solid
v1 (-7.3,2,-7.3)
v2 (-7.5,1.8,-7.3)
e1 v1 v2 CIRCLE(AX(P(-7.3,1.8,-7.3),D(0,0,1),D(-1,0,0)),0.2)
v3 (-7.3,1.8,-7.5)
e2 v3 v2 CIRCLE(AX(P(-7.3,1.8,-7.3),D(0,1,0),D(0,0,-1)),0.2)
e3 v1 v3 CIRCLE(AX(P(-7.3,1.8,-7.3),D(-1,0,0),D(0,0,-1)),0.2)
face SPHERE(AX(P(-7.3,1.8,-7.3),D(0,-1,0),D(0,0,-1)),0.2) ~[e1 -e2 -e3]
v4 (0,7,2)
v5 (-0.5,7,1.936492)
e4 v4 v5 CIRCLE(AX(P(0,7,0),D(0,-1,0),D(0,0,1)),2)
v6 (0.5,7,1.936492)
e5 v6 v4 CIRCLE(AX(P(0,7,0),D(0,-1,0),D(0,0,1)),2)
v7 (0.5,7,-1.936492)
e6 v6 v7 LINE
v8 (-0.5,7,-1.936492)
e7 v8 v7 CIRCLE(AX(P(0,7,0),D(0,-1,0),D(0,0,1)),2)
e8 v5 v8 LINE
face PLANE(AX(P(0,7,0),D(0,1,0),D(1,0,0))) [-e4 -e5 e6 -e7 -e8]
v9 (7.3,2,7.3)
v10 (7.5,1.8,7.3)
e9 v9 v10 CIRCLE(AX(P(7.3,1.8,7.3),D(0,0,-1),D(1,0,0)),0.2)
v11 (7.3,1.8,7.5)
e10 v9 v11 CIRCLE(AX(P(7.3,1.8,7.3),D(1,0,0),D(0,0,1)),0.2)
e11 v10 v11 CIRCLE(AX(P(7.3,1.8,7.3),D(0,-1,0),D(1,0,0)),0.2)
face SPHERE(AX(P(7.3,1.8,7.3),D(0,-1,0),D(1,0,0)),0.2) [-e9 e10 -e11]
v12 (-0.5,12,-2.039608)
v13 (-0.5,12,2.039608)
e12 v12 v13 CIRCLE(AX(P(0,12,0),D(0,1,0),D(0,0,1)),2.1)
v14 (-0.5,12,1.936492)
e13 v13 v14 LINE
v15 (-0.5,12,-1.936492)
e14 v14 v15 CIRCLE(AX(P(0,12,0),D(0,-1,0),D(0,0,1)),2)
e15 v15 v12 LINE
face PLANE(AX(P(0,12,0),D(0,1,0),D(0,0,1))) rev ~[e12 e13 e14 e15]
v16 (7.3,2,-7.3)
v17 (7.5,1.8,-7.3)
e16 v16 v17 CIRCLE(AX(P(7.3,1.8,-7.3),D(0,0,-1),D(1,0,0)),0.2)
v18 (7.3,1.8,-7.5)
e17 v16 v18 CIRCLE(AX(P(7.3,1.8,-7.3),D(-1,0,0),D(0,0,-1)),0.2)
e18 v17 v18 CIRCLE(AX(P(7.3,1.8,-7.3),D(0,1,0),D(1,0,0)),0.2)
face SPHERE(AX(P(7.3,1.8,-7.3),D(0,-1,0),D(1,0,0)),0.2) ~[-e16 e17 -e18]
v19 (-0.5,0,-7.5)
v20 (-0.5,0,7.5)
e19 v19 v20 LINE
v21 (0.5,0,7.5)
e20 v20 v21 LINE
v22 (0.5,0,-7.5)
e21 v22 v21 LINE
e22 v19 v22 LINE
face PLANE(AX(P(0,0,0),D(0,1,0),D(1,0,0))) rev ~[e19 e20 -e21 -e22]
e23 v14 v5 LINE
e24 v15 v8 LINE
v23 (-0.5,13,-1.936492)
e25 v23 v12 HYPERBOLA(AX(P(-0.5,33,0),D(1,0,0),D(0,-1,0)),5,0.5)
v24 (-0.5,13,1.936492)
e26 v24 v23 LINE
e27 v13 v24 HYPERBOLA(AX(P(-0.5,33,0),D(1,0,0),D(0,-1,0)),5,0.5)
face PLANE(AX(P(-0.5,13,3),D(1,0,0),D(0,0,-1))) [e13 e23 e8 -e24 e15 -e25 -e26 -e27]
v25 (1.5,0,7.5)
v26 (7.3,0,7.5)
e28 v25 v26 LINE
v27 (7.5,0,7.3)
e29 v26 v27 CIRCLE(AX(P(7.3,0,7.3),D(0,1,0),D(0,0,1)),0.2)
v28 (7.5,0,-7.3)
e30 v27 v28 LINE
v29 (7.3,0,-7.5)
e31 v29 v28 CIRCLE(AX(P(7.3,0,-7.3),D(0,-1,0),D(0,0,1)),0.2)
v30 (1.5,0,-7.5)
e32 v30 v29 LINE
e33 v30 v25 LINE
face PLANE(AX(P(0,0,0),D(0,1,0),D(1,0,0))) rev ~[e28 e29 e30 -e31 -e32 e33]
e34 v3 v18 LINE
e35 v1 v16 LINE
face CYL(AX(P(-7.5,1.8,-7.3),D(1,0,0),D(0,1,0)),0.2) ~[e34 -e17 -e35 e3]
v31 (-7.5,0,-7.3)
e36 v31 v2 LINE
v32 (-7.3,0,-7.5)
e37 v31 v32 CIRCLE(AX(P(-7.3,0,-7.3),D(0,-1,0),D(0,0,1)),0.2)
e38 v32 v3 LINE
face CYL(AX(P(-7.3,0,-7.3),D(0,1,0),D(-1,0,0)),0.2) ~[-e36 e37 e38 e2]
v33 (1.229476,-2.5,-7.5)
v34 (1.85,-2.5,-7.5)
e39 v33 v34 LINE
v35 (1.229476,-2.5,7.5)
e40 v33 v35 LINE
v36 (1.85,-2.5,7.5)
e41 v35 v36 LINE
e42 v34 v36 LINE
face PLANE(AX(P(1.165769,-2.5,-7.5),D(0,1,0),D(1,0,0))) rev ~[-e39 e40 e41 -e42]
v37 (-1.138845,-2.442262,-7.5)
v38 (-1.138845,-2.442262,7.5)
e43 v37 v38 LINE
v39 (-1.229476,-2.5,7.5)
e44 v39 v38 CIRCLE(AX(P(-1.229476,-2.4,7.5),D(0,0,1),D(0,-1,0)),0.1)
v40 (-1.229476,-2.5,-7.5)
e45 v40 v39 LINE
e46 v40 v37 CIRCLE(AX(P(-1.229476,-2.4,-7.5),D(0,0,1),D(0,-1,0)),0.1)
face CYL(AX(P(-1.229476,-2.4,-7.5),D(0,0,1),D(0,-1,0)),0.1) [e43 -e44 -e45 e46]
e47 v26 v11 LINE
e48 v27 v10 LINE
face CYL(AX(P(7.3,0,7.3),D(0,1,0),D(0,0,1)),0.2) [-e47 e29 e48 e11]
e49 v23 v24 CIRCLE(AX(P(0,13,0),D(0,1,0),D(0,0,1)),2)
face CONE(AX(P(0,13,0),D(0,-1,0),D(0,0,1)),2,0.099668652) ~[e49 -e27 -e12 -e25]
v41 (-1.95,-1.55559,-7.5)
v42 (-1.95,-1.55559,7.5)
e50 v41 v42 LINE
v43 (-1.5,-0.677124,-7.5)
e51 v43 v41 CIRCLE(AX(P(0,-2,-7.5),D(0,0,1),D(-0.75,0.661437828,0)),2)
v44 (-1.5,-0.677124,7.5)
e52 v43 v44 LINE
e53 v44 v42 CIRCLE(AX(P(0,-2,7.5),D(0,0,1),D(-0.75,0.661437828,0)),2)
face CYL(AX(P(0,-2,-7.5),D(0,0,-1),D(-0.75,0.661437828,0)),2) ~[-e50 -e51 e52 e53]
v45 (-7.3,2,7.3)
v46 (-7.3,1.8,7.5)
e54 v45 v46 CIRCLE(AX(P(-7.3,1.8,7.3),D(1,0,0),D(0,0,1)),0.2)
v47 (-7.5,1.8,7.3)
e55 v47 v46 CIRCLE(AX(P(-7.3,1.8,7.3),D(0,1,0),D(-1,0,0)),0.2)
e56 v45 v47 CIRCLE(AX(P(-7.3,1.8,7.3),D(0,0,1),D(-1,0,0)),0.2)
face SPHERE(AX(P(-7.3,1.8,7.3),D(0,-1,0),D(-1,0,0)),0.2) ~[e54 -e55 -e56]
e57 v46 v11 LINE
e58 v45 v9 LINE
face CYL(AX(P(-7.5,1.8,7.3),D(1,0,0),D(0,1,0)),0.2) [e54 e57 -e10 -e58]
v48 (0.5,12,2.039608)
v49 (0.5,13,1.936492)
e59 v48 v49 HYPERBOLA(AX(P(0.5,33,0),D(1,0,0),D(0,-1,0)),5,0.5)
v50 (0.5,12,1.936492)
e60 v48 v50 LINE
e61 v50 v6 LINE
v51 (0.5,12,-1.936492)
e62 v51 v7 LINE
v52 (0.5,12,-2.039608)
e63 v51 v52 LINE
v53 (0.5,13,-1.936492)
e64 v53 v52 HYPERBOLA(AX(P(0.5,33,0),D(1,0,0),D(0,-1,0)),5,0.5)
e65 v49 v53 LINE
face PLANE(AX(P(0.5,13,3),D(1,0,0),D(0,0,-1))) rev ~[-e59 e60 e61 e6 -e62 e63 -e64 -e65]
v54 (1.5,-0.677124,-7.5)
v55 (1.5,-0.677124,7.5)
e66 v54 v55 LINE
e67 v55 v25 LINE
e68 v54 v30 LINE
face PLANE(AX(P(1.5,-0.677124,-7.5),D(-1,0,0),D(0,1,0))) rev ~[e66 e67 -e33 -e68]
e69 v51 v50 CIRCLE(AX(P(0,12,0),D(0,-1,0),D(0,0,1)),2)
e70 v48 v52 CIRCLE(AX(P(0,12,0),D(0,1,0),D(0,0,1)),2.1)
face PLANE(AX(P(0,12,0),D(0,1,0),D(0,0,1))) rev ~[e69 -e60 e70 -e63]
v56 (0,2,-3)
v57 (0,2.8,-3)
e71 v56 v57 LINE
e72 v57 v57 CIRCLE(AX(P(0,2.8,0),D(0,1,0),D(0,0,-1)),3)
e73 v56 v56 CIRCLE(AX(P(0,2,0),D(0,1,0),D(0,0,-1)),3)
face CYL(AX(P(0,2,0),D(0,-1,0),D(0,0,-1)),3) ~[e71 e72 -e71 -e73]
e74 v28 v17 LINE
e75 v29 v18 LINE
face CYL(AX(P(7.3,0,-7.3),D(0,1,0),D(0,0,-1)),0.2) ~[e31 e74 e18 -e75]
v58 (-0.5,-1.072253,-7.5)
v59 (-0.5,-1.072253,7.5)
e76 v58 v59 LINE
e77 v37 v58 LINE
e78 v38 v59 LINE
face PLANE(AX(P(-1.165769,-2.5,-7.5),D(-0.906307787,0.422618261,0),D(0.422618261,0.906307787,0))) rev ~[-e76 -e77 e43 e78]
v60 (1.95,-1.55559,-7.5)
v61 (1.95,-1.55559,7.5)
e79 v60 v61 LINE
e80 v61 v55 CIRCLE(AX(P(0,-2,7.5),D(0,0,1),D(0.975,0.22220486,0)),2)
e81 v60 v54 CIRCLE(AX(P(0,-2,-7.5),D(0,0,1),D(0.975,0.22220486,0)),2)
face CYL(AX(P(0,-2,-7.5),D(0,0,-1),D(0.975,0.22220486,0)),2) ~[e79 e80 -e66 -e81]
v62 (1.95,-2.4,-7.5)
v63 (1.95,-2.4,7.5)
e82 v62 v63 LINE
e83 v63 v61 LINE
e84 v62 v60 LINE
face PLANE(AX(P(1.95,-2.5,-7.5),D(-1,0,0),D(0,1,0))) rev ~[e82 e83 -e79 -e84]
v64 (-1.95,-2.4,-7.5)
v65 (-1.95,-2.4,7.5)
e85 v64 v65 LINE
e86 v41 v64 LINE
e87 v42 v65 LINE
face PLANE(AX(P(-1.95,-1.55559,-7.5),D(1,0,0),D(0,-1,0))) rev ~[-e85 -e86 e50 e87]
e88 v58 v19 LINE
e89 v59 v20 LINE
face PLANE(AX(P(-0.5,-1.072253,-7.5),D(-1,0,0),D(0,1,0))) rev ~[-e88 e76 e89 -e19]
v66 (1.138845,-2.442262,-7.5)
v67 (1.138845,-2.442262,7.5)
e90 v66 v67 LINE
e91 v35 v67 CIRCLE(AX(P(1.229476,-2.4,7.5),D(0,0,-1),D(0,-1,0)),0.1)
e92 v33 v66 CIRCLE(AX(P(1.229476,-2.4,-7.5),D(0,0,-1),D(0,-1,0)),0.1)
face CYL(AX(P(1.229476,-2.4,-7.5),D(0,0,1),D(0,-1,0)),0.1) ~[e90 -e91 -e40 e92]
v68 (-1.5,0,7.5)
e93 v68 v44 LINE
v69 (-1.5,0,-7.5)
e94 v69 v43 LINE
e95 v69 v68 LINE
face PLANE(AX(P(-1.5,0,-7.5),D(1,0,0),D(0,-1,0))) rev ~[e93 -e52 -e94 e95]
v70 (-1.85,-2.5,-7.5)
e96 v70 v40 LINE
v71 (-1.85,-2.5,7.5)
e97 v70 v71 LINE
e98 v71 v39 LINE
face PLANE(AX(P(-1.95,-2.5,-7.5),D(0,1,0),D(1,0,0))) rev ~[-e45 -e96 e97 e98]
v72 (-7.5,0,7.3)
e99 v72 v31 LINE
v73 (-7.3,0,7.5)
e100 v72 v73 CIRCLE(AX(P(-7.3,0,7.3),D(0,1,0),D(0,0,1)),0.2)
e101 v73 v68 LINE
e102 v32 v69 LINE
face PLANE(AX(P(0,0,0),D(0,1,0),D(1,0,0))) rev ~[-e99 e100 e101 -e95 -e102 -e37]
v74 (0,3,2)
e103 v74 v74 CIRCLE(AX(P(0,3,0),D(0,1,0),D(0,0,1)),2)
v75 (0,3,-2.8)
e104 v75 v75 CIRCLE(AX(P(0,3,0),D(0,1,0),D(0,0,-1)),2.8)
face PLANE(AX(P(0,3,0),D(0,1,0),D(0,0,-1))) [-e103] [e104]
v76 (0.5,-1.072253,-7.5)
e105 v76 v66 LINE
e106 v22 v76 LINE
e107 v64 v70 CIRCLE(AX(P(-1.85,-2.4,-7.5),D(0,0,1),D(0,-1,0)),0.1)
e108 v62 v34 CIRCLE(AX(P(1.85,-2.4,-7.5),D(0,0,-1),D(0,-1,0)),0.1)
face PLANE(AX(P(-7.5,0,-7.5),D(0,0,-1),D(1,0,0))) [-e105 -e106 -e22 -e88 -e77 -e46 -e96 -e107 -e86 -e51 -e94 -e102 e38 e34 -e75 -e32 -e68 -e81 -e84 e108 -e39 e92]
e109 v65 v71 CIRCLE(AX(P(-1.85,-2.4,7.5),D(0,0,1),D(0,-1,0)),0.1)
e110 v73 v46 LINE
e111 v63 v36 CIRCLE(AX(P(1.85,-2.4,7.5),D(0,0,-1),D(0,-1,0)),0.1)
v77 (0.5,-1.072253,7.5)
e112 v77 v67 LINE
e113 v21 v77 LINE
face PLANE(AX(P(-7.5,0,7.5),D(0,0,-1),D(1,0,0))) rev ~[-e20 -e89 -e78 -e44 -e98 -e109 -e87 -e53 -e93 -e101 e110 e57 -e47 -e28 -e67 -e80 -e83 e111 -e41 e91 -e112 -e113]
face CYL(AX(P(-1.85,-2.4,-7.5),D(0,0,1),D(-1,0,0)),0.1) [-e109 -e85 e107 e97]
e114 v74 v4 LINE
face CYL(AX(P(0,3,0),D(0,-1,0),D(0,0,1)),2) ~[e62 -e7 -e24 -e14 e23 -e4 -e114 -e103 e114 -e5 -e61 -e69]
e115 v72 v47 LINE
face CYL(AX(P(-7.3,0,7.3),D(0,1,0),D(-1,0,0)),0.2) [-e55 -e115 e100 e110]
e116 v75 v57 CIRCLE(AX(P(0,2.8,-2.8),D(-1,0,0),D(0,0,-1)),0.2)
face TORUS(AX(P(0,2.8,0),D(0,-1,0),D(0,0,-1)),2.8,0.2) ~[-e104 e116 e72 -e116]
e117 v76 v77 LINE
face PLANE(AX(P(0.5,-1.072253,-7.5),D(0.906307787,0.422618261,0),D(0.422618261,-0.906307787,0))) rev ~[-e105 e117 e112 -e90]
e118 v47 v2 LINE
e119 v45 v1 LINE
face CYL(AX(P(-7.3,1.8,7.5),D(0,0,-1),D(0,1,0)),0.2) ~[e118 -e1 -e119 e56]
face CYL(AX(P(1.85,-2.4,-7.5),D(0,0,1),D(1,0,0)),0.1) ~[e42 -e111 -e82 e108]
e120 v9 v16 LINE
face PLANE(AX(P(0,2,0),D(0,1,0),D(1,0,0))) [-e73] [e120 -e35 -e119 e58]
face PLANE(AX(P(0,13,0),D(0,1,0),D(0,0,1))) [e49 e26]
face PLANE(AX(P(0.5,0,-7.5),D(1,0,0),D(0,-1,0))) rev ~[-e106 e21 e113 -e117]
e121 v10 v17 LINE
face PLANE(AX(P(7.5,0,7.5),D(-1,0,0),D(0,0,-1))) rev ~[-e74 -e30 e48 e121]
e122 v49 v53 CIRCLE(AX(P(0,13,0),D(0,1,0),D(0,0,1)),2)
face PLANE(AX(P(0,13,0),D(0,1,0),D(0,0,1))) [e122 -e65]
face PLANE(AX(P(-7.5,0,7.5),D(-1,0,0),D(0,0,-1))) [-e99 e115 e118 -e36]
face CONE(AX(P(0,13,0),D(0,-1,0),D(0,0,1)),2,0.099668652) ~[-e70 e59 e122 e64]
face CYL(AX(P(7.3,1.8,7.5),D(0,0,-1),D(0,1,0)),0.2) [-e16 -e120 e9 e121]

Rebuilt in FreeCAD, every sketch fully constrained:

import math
import FreeCAD as App
import Part
import Sketcher
from FreeCAD import Vector
Q = App.Units.Quantity


def edges_at(feature, points):
    """Names of the edges that pass closest to the given points."""
    edges = feature.Shape.Edges
    near = lambda p: min(range(len(edges)), key=lambda i: edges[i].distToShape(Part.Vertex(*p))[0])
    return sorted({f"Edge{near(p) + 1}" for p in points})

doc = App.newDocument("Part")
body = doc.addObject("PartDesign::Body", "Body")

# Sketch on XZ plane
sketch1 = body.newObject("Sketcher::SketchObject", "Sketch")
sketch1.AttachmentSupport = (doc.getObject("XZ_Plane"), [""])
sketch1.MapMode = "FlatFace"
sketch1.addGeometry([
    Part.LineSegment(Vector(-8, -8, 0), Vector(-8, 8, 0)),
    Part.LineSegment(Vector(-8, 8, 0), Vector(8, 8, 0)),
    Part.LineSegment(Vector(8, 8, 0), Vector(8, -8, 0)),
    Part.LineSegment(Vector(8, -8, 0), Vector(-8, -8, 0)),
], False)
sketch1.addConstraint([
    Sketcher.Constraint("Coincident", 0, 2, 1, 1),
    Sketcher.Constraint("Coincident", 1, 2, 2, 1),
    Sketcher.Constraint("Coincident", 2, 2, 3, 1),
    Sketcher.Constraint("Coincident", 3, 2, 0, 1),
    Sketcher.Constraint("Vertical", 0),
    Sketcher.Constraint("Horizontal", 1),
    Sketcher.Constraint("Vertical", 2),
    Sketcher.Constraint("Horizontal", 3),
    Sketcher.Constraint("Symmetric", 0, 2, 2, 2, -1, 1),
    Sketcher.Constraint("Equal", 3, 0),
    Sketcher.Constraint("DistanceX", 1, 1, 1, 2, Q("15 mm")),
])
pad1 = body.newObject("PartDesign::Pad", "Pad")
pad1.Profile = sketch1
pad1.Length = 2
pad1.Reversed = True

# Sketch on XZ plane
sketch2 = body.newObject("Sketcher::SketchObject", "Sketch001")
sketch2.AttachmentSupport = (doc.getObject("XZ_Plane"), [""])
sketch2.MapMode = "FlatFace"
sketch2.AttachmentOffset = App.Placement(Vector(0, 0, -2), App.Rotation())
sketch2.addGeometry(Part.Circle(Vector(0, 0, 0), Vector(0, 0, 1), 3), False)
sketch2.addConstraint([
    Sketcher.Constraint("Coincident", 0, 3, -1, 1),
    Sketcher.Constraint("Diameter", 0, Q("6 mm")),
])
pad2 = body.newObject("PartDesign::Pad", "Pad001")
pad2.Profile = sketch2
pad2.Length = 1
pad2.Reversed = True

# Sketch on XZ plane
sketch3 = body.newObject("Sketcher::SketchObject", "Sketch002")
sketch3.AttachmentSupport = (doc.getObject("XZ_Plane"), [""])
sketch3.MapMode = "FlatFace"
sketch3.AttachmentOffset = App.Placement(Vector(0, 0, -3), App.Rotation())
sketch3.addGeometry(Part.Circle(Vector(0, 0, 0), Vector(0, 0, 1), 2), False)
sketch3.addConstraint([
    Sketcher.Constraint("Coincident", 0, 3, -1, 1),
    Sketcher.Constraint("Diameter", 0, Q("4 mm")),
])
pad3 = body.newObject("PartDesign::Pad", "Pad002")
pad3.Profile = sketch3
pad3.Length = 10
pad3.Reversed = True

# Sketch on XY plane
sketch4 = body.newObject("Sketcher::SketchObject", "Sketch003")
sketch4.AttachmentSupport = (doc.getObject("XY_Plane"), [""])
sketch4.MapMode = "FlatFace"
sketch4.addGeometry([
    Part.LineSegment(Vector(0, 13, 0), Vector(-2, 13, 0)),
    Part.LineSegment(Vector(-2, 13, 0), Vector(-2.1, 12, 0)),
    Part.LineSegment(Vector(-2.1, 12, 0), Vector(0, 12, 0)),
    Part.LineSegment(Vector(0, 12, 0), Vector(0, 13, 0)),
], False)
sketch4.addConstraint([
    Sketcher.Constraint("Coincident", 0, 2, 1, 1),
    Sketcher.Constraint("Coincident", 1, 2, 2, 1),
    Sketcher.Constraint("Coincident", 2, 2, 3, 1),
    Sketcher.Constraint("Coincident", 3, 2, 0, 1),
    Sketcher.Constraint("Horizontal", 0),
    Sketcher.Constraint("Horizontal", 2),
    Sketcher.Constraint("Vertical", 3),
    Sketcher.Constraint("PointOnObject", 2, 2, -2),
    Sketcher.Constraint("DistanceX", 0, 2, 0, 1, Q("2 mm")),
    Sketcher.Constraint("DistanceY", 3, 1, 3, 2, Q("1 mm")),
    Sketcher.Constraint("DistanceX", 2, 1, 2, 2, Q("2.1 mm")),
    Sketcher.Constraint("DistanceY", -1, 1, 0, 2, Q("13 mm")),
])
revolution = body.newObject("PartDesign::Revolution", "Revolution")
revolution.Profile = sketch4
revolution.ReferenceAxis = (sketch4, ["V_Axis"])
revolution.Angle = 360

# Sketch on XZ plane
sketch5 = body.newObject("Sketcher::SketchObject", "Sketch004")
sketch5.AttachmentSupport = (doc.getObject("XZ_Plane"), [""])
sketch5.MapMode = "FlatFace"
sketch5.AttachmentOffset = App.Placement(Vector(0, 0, -13), App.Rotation())
sketch5.addGeometry([
    Part.LineSegment(Vector(-0.5, -3, 0), Vector(-0.5, 3, 0)),
    Part.LineSegment(Vector(-0.5, 3, 0), Vector(0.5, 3, 0)),
    Part.LineSegment(Vector(0.5, 3, 0), Vector(0.5, -3, 0)),
    Part.LineSegment(Vector(0.5, -3, 0), Vector(-0.5, -3, 0)),
], False)
sketch5.addConstraint([
    Sketcher.Constraint("Coincident", 0, 2, 1, 1),
    Sketcher.Constraint("Coincident", 1, 2, 2, 1),
    Sketcher.Constraint("Coincident", 2, 2, 3, 1),
    Sketcher.Constraint("Coincident", 3, 2, 0, 1),
    Sketcher.Constraint("Vertical", 0),
    Sketcher.Constraint("Horizontal", 1),
    Sketcher.Constraint("Vertical", 2),
    Sketcher.Constraint("Horizontal", 3),
    Sketcher.Constraint("Symmetric", 0, 2, 2, 2, -1, 1),
    Sketcher.Constraint("DistanceX", 1, 1, 1, 2, Q("1 mm")),
    Sketcher.Constraint("DistanceY", 0, 1, 0, 2, Q("6 mm")),
])
pocket1 = body.newObject("PartDesign::Pocket", "Pocket")
pocket1.Profile = sketch5
pocket1.Length = 6
pocket1.Reversed = True

# Sketch on XY plane
sketch6 = body.newObject("Sketcher::SketchObject", "Sketch005")
sketch6.AttachmentSupport = (doc.getObject("XY_Plane"), [""])
sketch6.MapMode = "FlatFace"
sketch6.addGeometry([
    Part.LineSegment(Vector(-0.5, 0, 0), Vector(-1.5, 0, 0)),  # 0
    Part.LineSegment(Vector(-1.5, 0, 0), Vector(-1.5, -0.7, 0)),  # 1
    Part.ArcOfCircle(Part.Circle(Vector(0, -2, 0), Vector(0, 0, 1), 2), math.radians(139), math.radians(167)),  # 2
    Part.LineSegment(Vector(-1.9, -1.6, 0), Vector(-1.9, -2.5, 0)),  # 3
    Part.LineSegment(Vector(-1.9, -2.5, 0), Vector(-1.2, -2.5, 0)),  # 4
    Part.LineSegment(Vector(-1.2, -2.5, 0), Vector(-0.5, -1.1, 0)),  # 5
    Part.LineSegment(Vector(-0.5, -1.1, 0), Vector(-0.5, 0, 0)),  # 6
    Part.LineSegment(Vector(0.5, 0, 0), Vector(0.5, -1.1, 0)),  # 7
    Part.LineSegment(Vector(0.5, -1.1, 0), Vector(1.2, -2.5, 0)),  # 8
    Part.LineSegment(Vector(1.2, -2.5, 0), Vector(1.9, -2.5, 0)),  # 9
    Part.LineSegment(Vector(1.9, -2.5, 0), Vector(1.9, -1.6, 0)),  # 10
    Part.ArcOfCircle(Part.Circle(Vector(0, -2, 0), Vector(0, 0, 1), 2), math.radians(13), math.radians(41)),  # 11
    Part.LineSegment(Vector(1.5, -0.7, 0), Vector(1.5, 0, 0)),  # 12
    Part.LineSegment(Vector(1.5, 0, 0), Vector(0.5, 0, 0)),  # 13
], False)
sketch6.addConstraint([
    Sketcher.Constraint("Coincident", 0, 2, 1, 1),
    Sketcher.Constraint("Coincident", 1, 2, 2, 1),
    Sketcher.Constraint("Coincident", 2, 2, 3, 1),
    Sketcher.Constraint("Coincident", 3, 2, 4, 1),
    Sketcher.Constraint("Coincident", 4, 2, 5, 1),
    Sketcher.Constraint("Coincident", 5, 2, 6, 1),
    Sketcher.Constraint("Coincident", 6, 2, 0, 1),
    Sketcher.Constraint("Coincident", 7, 2, 8, 1),
    Sketcher.Constraint("Coincident", 8, 2, 9, 1),
    Sketcher.Constraint("Coincident", 9, 2, 10, 1),
    Sketcher.Constraint("Coincident", 10, 2, 11, 1),
    Sketcher.Constraint("Coincident", 11, 2, 12, 1),
    Sketcher.Constraint("Coincident", 12, 2, 13, 1),
    Sketcher.Constraint("Coincident", 13, 2, 7, 1),
    Sketcher.Constraint("Horizontal", 0),
    Sketcher.Constraint("Vertical", 1),
    Sketcher.Constraint("Vertical", 3),
    Sketcher.Constraint("Horizontal", 4),
    Sketcher.Constraint("Vertical", 6),
    Sketcher.Constraint("Vertical", 7),
    Sketcher.Constraint("Horizontal", 9),
    Sketcher.Constraint("Vertical", 10),
    Sketcher.Constraint("Vertical", 12),
    Sketcher.Constraint("Horizontal", 13),
    Sketcher.Constraint("Coincident", 11, 3, 2, 3),
    Sketcher.Constraint("Equal", 2, 11),
    Sketcher.Constraint("Symmetric", 0, 2, 12, 2, -1, 1),
    Sketcher.Constraint("Symmetric", 5, 2, 7, 2, -2),
    Sketcher.Constraint("Symmetric", 4, 2, 8, 2, -2),
    Sketcher.Constraint("Symmetric", 2, 2, 10, 2, -2),
    Sketcher.Constraint("PointOnObject", 0, 2, -1),
    Sketcher.Constraint("Radius", 2, Q("2 mm")),
    Sketcher.Constraint("DistanceX", 0, 2, 0, 1, Q("1 mm")),
    Sketcher.Constraint("Angle", 5, Q("65 deg")),
    Sketcher.Constraint("DistanceY", 2, 3, -1, 1, Q("2 mm")),
    Sketcher.Constraint("DistanceX", 5, 2, 7, 2, Q("1 mm")),
    Sketcher.Constraint("DistanceY", 3, 2, -1, 1, Q("2.5 mm")),
    Sketcher.Constraint("DistanceX", 2, 2, -1, 1, Q("1.95 mm")),
    Sketcher.Constraint("DistanceX", 4, 1, 4, 2, Q("0.784231 mm")),
])
pad4 = body.newObject("PartDesign::Pad", "Pad003")
pad4.Profile = sketch6
pad4.Type = "TwoLengths"
pad4.Length = 7.5
pad4.Length2 = 7.5
doc.recompute()

fillet = body.newObject("PartDesign::Fillet", "Fillet")
fillet.Base = (pad4, edges_at(pad4, [
    (-7.5, 1, -7.5),
    (7.5, 1, -7.5),
    (7.5, 1, 7.5),
    (-7.5, 1, 7.5),
    (7.5, 2, 0),
    (0, 2, -7.5),
    (-7.5, 2, 0),
    (0, 2, 7.5),
    (0, 3, 3),
]))
fillet.Radius = 0.2
doc.recompute()

fillet2 = body.newObject("PartDesign::Fillet", "Fillet001")
fillet2.Base = (fillet, edges_at(fillet, [
    (-1.166, -2.5, 0),
    (-1.95, -2.5, 0),
    (1.95, -2.5, 0),
    (1.166, -2.5, 0),
]))
fillet2.Radius = 0.1

doc.recompute()
